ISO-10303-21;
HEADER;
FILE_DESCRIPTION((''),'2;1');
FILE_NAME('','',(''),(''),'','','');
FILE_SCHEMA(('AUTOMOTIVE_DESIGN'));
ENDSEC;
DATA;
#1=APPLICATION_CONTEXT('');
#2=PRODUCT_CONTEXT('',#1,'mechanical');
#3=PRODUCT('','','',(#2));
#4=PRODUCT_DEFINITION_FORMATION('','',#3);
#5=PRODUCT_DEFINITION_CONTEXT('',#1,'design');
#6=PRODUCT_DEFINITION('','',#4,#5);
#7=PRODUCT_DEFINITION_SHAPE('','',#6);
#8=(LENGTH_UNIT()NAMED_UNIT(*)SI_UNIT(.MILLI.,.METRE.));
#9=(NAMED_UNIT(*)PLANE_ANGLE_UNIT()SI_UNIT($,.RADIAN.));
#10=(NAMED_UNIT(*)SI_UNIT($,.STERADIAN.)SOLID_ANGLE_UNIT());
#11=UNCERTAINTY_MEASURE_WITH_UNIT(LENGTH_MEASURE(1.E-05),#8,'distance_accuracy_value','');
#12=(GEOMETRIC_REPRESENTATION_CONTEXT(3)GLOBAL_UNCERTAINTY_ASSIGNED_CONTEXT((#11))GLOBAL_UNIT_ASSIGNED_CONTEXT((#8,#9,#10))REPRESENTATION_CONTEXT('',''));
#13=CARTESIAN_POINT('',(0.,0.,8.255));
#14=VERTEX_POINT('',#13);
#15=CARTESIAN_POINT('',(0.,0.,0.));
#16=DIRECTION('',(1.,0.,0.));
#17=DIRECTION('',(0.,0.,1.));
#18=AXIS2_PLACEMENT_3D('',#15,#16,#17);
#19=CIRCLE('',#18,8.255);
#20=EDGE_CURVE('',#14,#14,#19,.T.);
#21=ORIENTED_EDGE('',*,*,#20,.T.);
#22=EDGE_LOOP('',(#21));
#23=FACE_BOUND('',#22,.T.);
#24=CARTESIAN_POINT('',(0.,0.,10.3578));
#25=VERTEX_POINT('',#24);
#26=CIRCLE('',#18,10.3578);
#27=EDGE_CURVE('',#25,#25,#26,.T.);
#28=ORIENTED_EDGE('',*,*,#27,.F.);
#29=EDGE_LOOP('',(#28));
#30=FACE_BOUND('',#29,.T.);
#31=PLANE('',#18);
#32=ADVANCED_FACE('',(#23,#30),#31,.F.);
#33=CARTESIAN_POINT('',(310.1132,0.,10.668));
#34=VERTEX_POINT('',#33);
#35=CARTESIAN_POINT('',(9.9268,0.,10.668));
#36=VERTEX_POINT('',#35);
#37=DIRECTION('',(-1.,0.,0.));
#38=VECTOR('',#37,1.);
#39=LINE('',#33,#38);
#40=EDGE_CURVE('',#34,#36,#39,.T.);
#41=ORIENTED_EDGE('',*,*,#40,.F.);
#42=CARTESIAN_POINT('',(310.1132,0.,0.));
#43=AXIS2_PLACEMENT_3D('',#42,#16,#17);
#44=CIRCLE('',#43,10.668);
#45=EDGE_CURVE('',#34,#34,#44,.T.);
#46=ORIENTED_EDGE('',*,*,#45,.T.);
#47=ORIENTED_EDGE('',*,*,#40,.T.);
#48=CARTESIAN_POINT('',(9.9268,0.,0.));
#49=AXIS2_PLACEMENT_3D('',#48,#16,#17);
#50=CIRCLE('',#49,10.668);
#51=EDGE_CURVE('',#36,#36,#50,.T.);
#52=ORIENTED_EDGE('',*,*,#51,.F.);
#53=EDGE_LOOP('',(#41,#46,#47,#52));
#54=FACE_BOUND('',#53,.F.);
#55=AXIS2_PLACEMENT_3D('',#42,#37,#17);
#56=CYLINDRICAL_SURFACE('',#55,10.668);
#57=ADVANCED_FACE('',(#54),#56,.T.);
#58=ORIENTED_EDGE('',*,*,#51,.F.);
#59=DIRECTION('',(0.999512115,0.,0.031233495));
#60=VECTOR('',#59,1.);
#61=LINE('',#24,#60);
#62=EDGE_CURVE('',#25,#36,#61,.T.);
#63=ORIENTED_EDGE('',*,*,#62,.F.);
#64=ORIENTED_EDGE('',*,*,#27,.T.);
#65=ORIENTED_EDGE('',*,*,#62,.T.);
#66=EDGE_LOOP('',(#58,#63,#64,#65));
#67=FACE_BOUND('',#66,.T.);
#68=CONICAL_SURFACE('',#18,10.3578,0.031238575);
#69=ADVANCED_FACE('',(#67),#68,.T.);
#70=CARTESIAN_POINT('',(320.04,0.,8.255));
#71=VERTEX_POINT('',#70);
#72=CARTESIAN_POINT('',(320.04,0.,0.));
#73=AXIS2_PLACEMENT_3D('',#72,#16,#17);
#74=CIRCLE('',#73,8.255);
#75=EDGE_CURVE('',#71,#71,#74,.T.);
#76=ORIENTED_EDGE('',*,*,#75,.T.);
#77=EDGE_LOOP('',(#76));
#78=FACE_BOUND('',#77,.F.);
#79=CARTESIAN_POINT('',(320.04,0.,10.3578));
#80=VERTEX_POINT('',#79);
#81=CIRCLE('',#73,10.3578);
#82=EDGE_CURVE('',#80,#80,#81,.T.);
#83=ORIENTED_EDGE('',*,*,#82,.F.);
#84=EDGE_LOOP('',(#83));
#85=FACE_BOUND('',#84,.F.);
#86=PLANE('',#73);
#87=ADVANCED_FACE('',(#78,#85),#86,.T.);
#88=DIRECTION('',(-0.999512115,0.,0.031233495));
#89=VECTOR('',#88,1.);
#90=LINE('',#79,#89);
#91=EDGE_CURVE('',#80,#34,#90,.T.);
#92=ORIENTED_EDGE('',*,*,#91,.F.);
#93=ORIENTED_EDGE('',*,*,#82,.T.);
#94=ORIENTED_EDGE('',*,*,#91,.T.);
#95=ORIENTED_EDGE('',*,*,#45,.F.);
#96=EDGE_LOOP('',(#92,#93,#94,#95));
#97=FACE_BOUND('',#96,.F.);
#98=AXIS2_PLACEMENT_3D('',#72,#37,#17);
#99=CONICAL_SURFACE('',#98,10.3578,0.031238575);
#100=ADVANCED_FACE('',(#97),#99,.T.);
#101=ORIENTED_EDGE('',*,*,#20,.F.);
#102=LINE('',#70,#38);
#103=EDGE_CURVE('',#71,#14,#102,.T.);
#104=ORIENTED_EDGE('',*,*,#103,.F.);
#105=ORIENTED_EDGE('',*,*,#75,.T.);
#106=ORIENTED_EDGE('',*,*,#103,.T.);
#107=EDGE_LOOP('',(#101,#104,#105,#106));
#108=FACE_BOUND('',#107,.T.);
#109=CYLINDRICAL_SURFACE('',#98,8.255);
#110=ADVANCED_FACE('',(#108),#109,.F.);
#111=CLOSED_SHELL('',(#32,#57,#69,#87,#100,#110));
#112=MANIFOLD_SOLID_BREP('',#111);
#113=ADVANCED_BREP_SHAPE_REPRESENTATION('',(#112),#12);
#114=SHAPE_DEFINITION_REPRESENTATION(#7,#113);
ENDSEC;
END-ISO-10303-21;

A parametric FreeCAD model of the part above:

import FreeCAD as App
import Part
import Sketcher
Q = App.Units.Quantity


def add_polygon(sketch, points):
    """Adds a closed chain of lines whose ends are joined by coincident constraints."""
    first, n = sketch.GeometryCount, len(points)
    for a, b in zip(points, points[1:] + points[:1]):
        sketch.addGeometry(Part.LineSegment(App.Vector(*a, 0), App.Vector(*b, 0)), False)
    for i in range(n):
        sketch.addConstraint(Sketcher.Constraint("Coincident", first + i, 2, first + (i + 1) % n, 1))

doc = App.newDocument("Part")
body = doc.addObject("PartDesign::Body", "Body")

sketch1 = body.newObject("Sketcher::SketchObject", "Sketch")
sketch1.AttachmentSupport = (doc.getObject("XZ_Plane"), [""])
sketch1.MapMode = "FlatFace"
add_polygon(sketch1, [(320, 10.4), (320, 8.3), (0, 8.3), (0, 10.4), (9.9, 10.7), (310.1, 10.7)])
sketch1.addConstraint(Sketcher.Constraint("Vertical", 0))
sketch1.addConstraint(Sketcher.Constraint("Horizontal", 1))
sketch1.addConstraint(Sketcher.Constraint("Vertical", 2))
sketch1.addConstraint(Sketcher.Constraint("Horizontal", 4))
sketch1.addConstraint(Sketcher.Constraint("PointOnObject", 1, 2, -2))
sketch1.addConstraint(Sketcher.Constraint("Horizontal", 2, 2, 5, 2))
sketch1.addConstraint(Sketcher.Constraint("Equal", 3, 5))
sketch1.addConstraint(Sketcher.Constraint("DistanceX", 1, 2, 1, 1, Q("12.6 in")))
sketch1.addConstraint(Sketcher.Constraint("Angle", 3, Q("1.7898 deg")))
sketch1.addConstraint(Sketcher.Constraint("DistanceY", -1, 1, 3, 2, Q("0.42 in")))
sketch1.addConstraint(Sketcher.Constraint("Distance", 3, Q("0.391 in")))
sketch1.addConstraint(Sketcher.Constraint("DistanceY", -1, 1, 0, 2, Q("0.325 in")))
revolution = body.newObject("PartDesign::Revolution", "Revolution")
revolution.Profile = sketch1
revolution.ReferenceAxis = (sketch1, ["H_Axis"])
revolution.Angle = 360

doc.recompute()
